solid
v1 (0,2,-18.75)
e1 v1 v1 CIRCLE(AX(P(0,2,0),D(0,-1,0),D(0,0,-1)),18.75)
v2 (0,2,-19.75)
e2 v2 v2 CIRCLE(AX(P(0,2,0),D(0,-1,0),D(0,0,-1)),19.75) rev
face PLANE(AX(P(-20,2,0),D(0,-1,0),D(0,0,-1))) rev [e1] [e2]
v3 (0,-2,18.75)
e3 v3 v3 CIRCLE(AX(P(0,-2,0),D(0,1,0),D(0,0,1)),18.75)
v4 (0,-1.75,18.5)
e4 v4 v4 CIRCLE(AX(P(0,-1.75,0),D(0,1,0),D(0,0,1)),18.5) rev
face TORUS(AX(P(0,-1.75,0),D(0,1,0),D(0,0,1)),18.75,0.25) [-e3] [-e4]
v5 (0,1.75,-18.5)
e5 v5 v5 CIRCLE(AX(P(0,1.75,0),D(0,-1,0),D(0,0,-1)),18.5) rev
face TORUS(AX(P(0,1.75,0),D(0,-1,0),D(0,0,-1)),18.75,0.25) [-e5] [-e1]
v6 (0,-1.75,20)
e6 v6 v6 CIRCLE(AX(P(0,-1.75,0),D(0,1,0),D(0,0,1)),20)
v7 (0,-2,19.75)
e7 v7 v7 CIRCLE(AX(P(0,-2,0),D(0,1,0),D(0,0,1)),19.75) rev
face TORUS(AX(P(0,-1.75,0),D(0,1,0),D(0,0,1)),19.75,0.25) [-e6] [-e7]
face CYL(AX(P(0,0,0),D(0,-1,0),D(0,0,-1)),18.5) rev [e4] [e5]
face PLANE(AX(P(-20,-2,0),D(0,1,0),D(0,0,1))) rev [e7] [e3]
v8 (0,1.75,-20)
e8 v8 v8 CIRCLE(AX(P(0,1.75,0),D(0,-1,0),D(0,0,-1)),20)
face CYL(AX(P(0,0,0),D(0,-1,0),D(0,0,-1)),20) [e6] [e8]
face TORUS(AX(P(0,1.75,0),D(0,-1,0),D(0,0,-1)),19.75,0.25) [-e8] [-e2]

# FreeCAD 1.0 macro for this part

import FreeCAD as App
import Part
import Sketcher


def edges_at(feature, points):
    """Names of the edges that pass closest to the given points."""
    edges = feature.Shape.Edges
    near = lambda p: min(range(len(edges)), key=lambda i: edges[i].distToShape(Part.Vertex(*p))[0])
    return sorted({f"Edge{near(p) + 1}" for p in points})


def add_polygon(sketch, points):
    """Adds a closed chain of lines whose ends are joined by coincident constraints."""
    first, n = sketch.GeometryCount, len(points)
    for a, b in zip(points, points[1:] + points[:1]):
        sketch.addGeometry(Part.LineSegment(App.Vector(*a, 0), App.Vector(*b, 0)), False)
    for i in range(n):
        sketch.addConstraint(Sketcher.Constraint("Coincident", first + i, 2, first + (i + 1) % n, 1))

doc = App.newDocument("Part")
body = doc.addObject("PartDesign::Body", "Body")

sketch1 = body.newObject("Sketcher::SketchObject", "Sketch")
sketch1.AttachmentSupport = (doc.getObject("XY_Plane"), [""])
sketch1.MapMode = "FlatFace"
add_polygon(sketch1, [(-20, 2), (-20, -2), (-18.5, -2), (-18.5, 2)])
sketch1.addConstraint([
    Sketcher.Constraint("Vertical", 0),
    Sketcher.Constraint("Horizontal", 1),
    Sketcher.Constraint("Vertical", 2),
    Sketcher.Constraint("Horizontal", 3),
    Sketcher.Constraint("DistanceY", 0, 2, 0, 1, 4.0),
    Sketcher.Constraint("DistanceX", 1, 1, 1, 2, 1.5),
    Sketcher.Constraint("DistanceX", 0, 2, -1, 1, 20.0),
    Sketcher.Constraint("DistanceY", 0, 2, -1, 1, 2.0),
])
revolution = body.newObject("PartDesign::Revolution", "Revolution")
revolution.Profile = sketch1
revolution.ReferenceAxis = (sketch1, ["V_Axis"])
revolution.Angle = 360
doc.recompute()

fillet = body.newObject("PartDesign::Fillet", "Fillet")
fillet.Base = (revolution, edges_at(revolution, [
    (20, 2, 0),
    (18.5, 2, 0),
    (18.5, -2, 0),
    (20, -2, 0),
]))
fillet.Radius = 0.25

doc.recompute()
